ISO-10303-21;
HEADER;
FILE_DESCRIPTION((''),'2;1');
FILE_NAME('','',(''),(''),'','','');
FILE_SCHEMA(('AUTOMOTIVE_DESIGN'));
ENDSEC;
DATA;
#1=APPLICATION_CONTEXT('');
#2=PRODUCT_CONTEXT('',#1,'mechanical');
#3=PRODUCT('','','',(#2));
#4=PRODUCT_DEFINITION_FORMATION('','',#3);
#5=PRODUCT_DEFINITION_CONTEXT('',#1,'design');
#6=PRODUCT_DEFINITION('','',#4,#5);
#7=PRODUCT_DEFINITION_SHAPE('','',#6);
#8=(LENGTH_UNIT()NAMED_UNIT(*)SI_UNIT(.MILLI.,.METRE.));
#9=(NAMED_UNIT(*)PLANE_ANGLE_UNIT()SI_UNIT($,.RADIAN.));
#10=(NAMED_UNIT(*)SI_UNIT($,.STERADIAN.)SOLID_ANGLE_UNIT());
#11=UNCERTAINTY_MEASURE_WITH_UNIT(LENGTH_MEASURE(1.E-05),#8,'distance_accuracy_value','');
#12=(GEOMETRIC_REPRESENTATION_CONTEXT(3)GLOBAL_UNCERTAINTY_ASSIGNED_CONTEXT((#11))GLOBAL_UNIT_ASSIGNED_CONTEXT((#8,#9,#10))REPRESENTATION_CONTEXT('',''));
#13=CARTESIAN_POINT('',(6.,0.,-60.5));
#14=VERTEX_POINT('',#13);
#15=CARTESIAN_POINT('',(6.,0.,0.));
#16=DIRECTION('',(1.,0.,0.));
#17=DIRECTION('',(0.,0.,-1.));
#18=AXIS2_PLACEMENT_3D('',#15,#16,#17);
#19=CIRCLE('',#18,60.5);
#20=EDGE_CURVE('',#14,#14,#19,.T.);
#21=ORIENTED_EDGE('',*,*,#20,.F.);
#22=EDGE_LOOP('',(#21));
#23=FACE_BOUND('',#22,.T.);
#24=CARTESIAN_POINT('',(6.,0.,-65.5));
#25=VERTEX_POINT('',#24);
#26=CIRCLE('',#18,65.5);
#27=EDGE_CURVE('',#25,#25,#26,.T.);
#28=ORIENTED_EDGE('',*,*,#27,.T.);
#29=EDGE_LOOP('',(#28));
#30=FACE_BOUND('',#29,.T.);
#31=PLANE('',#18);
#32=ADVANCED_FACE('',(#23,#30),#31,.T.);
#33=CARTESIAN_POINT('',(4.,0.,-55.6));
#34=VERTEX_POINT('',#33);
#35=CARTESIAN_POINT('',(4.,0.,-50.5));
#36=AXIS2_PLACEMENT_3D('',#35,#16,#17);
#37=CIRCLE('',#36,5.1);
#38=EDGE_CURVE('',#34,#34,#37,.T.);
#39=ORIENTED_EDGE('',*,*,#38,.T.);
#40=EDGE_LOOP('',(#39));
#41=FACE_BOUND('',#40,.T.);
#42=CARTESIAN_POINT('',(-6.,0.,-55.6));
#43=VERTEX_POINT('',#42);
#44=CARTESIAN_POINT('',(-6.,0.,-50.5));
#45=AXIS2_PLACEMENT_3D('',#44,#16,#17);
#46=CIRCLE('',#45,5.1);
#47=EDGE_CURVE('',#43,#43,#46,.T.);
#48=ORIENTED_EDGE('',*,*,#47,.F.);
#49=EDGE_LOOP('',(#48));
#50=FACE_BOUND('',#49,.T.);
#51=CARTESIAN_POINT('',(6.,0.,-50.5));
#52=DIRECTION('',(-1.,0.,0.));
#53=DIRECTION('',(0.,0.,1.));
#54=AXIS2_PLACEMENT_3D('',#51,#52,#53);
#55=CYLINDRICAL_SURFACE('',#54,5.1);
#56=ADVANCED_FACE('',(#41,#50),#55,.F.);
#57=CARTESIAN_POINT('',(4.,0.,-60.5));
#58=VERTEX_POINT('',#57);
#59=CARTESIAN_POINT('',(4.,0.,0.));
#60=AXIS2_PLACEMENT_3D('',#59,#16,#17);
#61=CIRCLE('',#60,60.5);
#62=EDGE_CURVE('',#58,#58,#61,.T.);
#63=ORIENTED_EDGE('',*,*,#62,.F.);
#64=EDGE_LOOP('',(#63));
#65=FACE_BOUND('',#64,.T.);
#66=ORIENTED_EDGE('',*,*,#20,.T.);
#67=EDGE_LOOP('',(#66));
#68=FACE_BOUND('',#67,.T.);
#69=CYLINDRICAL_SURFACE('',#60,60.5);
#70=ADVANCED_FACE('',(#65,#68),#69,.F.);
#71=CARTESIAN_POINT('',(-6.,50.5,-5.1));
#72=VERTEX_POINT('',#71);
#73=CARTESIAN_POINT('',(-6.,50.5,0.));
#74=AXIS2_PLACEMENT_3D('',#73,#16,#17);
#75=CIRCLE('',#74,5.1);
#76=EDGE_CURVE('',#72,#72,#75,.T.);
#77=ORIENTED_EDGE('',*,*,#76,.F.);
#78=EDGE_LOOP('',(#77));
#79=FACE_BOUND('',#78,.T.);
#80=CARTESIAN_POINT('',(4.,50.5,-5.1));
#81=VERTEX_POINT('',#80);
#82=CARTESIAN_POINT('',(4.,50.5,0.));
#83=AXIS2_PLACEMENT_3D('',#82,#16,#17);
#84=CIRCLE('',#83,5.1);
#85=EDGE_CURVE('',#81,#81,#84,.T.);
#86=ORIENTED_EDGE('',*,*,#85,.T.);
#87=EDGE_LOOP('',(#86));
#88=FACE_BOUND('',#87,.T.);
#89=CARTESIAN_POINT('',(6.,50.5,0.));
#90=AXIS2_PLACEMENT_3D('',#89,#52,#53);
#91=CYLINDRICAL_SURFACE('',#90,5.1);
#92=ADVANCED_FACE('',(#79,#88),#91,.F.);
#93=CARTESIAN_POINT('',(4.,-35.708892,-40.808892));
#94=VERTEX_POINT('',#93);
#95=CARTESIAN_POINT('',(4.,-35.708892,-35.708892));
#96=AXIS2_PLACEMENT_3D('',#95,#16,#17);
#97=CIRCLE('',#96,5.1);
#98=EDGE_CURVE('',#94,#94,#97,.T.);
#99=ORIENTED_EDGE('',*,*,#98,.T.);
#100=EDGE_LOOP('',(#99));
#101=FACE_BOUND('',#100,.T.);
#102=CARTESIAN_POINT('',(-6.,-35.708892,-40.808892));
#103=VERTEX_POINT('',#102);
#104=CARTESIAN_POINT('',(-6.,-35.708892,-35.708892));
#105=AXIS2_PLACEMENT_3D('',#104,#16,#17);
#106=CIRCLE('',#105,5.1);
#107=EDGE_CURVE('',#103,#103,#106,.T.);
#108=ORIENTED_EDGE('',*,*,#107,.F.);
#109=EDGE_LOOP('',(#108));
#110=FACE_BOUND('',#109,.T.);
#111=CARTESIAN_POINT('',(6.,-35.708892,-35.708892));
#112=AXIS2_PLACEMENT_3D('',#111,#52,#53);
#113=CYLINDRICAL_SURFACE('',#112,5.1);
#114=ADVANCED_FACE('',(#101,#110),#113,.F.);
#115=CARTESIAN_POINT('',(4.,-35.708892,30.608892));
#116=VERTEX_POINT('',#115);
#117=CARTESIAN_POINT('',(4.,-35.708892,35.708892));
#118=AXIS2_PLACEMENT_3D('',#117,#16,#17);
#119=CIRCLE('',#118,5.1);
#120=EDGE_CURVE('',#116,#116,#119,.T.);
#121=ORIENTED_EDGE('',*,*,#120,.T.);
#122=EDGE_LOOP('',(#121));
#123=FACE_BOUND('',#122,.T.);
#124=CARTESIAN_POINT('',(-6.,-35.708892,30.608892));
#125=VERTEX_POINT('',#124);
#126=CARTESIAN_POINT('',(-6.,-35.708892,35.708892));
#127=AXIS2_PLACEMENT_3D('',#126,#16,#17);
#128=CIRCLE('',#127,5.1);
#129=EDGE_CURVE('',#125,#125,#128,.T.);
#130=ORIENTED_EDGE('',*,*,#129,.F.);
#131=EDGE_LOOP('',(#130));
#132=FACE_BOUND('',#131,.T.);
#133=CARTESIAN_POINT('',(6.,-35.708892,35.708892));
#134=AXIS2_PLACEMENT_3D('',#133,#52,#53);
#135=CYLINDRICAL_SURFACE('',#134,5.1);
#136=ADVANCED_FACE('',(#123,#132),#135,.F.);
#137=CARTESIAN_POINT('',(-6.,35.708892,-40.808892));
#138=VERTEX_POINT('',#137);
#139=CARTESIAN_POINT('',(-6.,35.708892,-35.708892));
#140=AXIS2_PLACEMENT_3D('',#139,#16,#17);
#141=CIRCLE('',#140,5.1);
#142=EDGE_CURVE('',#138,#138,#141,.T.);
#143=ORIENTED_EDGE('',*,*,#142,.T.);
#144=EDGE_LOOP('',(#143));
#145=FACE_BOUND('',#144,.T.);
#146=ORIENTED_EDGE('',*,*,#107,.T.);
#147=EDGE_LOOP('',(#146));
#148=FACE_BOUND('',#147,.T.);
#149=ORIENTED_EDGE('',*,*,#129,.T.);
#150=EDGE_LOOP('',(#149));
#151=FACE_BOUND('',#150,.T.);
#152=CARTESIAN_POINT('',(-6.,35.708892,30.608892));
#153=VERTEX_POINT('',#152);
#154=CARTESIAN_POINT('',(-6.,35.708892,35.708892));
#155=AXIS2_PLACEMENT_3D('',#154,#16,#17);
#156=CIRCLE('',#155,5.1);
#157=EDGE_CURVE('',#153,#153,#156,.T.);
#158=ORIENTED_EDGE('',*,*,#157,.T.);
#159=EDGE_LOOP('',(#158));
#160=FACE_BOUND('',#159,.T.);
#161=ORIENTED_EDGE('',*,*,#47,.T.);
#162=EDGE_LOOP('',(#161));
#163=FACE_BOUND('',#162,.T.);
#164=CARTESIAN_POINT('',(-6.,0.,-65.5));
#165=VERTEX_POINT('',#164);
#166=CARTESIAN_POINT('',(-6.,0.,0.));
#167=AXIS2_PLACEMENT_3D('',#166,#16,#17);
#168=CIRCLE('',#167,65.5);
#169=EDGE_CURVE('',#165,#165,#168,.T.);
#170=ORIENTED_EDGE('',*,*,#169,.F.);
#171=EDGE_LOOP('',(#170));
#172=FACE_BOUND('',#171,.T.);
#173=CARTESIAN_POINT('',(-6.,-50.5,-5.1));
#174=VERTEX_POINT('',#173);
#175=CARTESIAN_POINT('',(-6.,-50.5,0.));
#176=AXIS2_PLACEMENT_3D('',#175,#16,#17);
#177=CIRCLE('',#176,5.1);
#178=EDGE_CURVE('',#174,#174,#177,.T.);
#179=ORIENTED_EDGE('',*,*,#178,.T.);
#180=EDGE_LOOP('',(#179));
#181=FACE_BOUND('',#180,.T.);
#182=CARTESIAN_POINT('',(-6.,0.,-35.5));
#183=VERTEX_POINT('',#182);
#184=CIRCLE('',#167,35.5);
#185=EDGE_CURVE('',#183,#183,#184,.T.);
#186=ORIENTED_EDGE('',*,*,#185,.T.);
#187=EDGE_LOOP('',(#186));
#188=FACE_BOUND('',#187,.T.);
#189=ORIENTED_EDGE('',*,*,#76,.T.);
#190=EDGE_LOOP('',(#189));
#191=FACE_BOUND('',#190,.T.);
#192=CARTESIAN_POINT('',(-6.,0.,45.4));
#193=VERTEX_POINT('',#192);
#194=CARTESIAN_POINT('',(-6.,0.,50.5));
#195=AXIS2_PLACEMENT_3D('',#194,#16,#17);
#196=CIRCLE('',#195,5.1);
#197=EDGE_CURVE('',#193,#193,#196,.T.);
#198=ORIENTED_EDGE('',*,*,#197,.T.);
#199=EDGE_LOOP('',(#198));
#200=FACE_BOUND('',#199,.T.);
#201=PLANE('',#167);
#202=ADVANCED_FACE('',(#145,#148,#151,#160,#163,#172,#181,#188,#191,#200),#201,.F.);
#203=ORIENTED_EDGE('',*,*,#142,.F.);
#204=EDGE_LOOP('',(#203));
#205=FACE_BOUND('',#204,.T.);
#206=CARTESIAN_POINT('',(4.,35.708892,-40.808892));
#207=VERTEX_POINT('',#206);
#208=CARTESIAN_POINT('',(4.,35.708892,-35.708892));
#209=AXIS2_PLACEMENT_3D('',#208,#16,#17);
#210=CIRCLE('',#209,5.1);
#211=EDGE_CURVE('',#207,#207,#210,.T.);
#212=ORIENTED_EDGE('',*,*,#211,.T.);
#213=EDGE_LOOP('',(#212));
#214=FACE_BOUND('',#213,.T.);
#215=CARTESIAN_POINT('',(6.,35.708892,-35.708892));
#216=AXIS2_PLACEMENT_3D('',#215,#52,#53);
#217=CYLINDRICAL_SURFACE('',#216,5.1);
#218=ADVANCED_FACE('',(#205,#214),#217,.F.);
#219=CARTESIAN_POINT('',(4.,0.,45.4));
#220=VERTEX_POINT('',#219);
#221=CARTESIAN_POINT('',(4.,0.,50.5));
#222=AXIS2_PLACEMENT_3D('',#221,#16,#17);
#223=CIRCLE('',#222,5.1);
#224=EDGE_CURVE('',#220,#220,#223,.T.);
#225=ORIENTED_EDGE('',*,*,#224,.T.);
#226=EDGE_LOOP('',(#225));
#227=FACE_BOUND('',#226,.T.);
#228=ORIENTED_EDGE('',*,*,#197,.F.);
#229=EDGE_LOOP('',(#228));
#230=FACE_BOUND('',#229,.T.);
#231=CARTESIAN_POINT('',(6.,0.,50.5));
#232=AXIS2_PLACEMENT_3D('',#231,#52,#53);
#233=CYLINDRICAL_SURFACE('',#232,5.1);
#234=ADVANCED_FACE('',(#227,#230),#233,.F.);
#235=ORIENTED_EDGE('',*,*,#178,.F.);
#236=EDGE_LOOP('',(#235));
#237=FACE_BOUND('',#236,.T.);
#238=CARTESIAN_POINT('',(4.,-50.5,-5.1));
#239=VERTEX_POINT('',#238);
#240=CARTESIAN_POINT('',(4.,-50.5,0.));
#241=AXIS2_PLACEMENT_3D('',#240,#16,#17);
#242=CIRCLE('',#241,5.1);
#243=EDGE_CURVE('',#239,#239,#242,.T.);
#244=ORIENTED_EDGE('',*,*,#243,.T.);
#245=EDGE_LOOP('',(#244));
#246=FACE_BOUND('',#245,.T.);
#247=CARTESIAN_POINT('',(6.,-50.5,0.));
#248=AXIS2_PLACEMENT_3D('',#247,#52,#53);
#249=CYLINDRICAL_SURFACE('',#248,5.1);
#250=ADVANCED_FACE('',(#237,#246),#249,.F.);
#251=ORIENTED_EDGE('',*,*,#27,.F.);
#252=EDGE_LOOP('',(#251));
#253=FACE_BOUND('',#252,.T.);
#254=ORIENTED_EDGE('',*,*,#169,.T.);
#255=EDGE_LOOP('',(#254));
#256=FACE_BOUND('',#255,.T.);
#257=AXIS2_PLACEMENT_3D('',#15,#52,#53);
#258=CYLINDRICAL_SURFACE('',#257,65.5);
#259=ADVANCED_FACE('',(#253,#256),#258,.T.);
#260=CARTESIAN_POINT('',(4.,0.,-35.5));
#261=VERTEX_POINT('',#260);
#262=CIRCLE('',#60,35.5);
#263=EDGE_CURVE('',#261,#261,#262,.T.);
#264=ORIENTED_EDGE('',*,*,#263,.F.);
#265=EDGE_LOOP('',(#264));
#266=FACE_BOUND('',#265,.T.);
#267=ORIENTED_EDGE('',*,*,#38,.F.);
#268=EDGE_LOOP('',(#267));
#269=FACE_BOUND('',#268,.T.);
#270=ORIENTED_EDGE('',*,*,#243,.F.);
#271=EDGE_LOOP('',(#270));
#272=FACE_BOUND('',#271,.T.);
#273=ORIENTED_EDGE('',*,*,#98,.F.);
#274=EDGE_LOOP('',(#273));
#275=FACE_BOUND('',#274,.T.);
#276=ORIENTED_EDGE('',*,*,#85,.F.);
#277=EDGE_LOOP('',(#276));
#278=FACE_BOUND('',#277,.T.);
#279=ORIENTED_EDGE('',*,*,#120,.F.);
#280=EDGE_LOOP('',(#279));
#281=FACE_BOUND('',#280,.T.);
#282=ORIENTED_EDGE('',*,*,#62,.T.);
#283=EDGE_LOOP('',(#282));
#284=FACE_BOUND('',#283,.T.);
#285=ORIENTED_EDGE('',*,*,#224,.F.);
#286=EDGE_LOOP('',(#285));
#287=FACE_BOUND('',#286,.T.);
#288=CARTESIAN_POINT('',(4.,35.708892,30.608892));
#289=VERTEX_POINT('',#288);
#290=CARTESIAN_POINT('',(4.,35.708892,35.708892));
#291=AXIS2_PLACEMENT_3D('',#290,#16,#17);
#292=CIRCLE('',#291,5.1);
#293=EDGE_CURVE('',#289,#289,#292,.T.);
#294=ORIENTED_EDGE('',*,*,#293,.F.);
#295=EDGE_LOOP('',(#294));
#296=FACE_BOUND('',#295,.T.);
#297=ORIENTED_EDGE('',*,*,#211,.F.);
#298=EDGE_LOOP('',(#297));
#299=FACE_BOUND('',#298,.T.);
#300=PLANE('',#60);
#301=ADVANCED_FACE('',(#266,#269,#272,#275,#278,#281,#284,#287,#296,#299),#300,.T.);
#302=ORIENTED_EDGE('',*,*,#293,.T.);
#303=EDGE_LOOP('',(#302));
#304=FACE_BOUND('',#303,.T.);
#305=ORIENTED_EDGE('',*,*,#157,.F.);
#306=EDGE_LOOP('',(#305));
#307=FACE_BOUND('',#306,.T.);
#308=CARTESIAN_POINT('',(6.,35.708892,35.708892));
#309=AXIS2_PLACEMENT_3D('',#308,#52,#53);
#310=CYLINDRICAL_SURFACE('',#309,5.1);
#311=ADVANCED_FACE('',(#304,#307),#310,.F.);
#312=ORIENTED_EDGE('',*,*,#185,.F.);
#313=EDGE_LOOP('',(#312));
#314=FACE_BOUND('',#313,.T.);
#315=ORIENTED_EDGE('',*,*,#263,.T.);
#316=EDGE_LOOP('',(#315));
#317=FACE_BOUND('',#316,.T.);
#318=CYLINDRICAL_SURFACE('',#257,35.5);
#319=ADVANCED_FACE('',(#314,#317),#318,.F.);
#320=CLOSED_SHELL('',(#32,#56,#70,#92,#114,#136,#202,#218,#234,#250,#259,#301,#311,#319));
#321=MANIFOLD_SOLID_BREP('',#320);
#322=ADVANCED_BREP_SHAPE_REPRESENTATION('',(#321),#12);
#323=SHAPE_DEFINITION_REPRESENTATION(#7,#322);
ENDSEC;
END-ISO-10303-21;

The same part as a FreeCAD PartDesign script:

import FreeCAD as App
import Part
import Sketcher

V = App.Vector
Q = App.Units.Quantity


def add_polygon(sketch, points):
    """Adds a closed chain of lines whose ends are joined by coincident constraints."""
    first, n = sketch.GeometryCount, len(points)
    for a, b in zip(points, points[1:] + points[:1]):
        sketch.addGeometry(Part.LineSegment(App.Vector(*a, 0), App.Vector(*b, 0)), False)
    for i in range(n):
        sketch.addConstraint(Sketcher.Constraint("Coincident", first + i, 2, first + (i + 1) % n, 1))

doc = App.newDocument("Part")
body = doc.addObject("PartDesign::Body", "Body")

sketch1 = doc.addObject("Sketcher::SketchObject", "Sketch")
body.addObject(sketch1)
sketch1.AttachmentSupport = (doc.YZ_Plane, [""])
sketch1.MapMode = "FlatFace"
sketch1.addGeometry([
    Part.Circle(V(0, 0, 0), V(0, 0, 1), 66),
    Part.Circle(V(-36, 36, 0), V(0, 0, 1), 5),
    Part.Circle(V(-50, 0, 0), V(0, 0, 1), 5),
    Part.Circle(V(-36, -36, 0), V(0, 0, 1), 5),
    Part.Circle(V(0, 50, 0), V(0, 0, 1), 5),
    Part.Circle(V(36, 36, 0), V(0, 0, 1), 5),
    Part.Circle(V(0, 0, 0), V(0, 0, 1), 36),
    Part.Circle(V(0, -50, 0), V(0, 0, 1), 5),
    Part.Circle(V(50, 0, 0), V(0, 0, 1), 5),
    Part.Circle(V(36, -36, 0), V(0, 0, 1), 5),
], False)
sketch1.addConstraint([
    Sketcher.Constraint("Coincident", 0, 3, -1, 1),
    Sketcher.Constraint("Coincident", 6, 3, -1, 1),
    Sketcher.Constraint("Equal", 1, 2),
    Sketcher.Constraint("Equal", 2, 3),
    Sketcher.Constraint("Equal", 3, 4),
    Sketcher.Constraint("Equal", 4, 5),
    Sketcher.Constraint("Equal", 5, 7),
    Sketcher.Constraint("Equal", 7, 8),
    Sketcher.Constraint("Equal", 8, 9),
    Sketcher.Constraint("Symmetric", 3, 3, 5, 3, -1, 1),
    Sketcher.Constraint("Symmetric", 4, 3, 7, 3, -1, 1),
    Sketcher.Constraint("Symmetric", 2, 3, 8, 3, -1, 1),
    Sketcher.Constraint("Symmetric", 1, 3, 9, 3, -1, 1),
    Sketcher.Constraint("Symmetric", 1, 3, 5, 3, -2),
    Sketcher.Constraint("PointOnObject", 2, 3, -1),
    Sketcher.Constraint("PointOnObject", 4, 3, -2),
    Sketcher.Constraint("Diameter", 0, Q("131 mm")),
    Sketcher.Constraint("Diameter", 6, Q("71 mm")),
    Sketcher.Constraint("Diameter", 1, Q("10.2 mm")),
    Sketcher.Constraint("DistanceX", 2, 3, -1, 1, Q("50.5 mm")),
    Sketcher.Constraint("DistanceY", -1, 1, 4, 3, Q("50.5 mm")),
    Sketcher.Constraint("DistanceX", 1, 3, -1, 1, Q("35.708892 mm")),
    Sketcher.Constraint("DistanceY", -1, 1, 1, 3, Q("35.708892 mm")),
])
pad1 = doc.addObject("PartDesign::Pad", "Pad")
body.addObject(pad1)
pad1.Profile = sketch1
pad1.Length = 12
pad1.Midplane = True

sketch2 = doc.addObject("Sketcher::SketchObject", "Sketch001")
body.addObject(sketch2)
sketch2.AttachmentSupport = (doc.YZ_Plane, [""])
sketch2.MapMode = "FlatFace"
sketch2.AttachmentOffset = App.Placement(V(0, 0, 6), App.Rotation())
add_polygon(sketch2, [(85, 85), (-85, 85), (-85, -85), (85, -85)])
sketch2.addGeometry(Part.Circle(V(0, 0, 0), V(0, 0, 1), 66), False)
sketch2.addGeometry(Part.Circle(V(0, 0, 0), V(0, 0, 1), 60), False)
sketch2.addConstraint([
    Sketcher.Constraint("Horizontal", 0),
    Sketcher.Constraint("Vertical", 1),
    Sketcher.Constraint("Horizontal", 2),
    Sketcher.Constraint("Vertical", 3),
    Sketcher.Constraint("Coincident", 4, 3, -1, 1),
    Sketcher.Constraint("Coincident", 5, 3, -1, 1),
    Sketcher.Constraint("Symmetric", 0, 2, 2, 2, -1, 1),
    Sketcher.Constraint("Equal", 2, 1),
    Sketcher.Constraint("Diameter", 4, Q("131 mm")),
    Sketcher.Constraint("Diameter", 5, Q("121 mm")),
    Sketcher.Constraint("DistanceX", 0, 2, 0, 1, Q("170.13 mm")),
])
pocket1 = doc.addObject("PartDesign::Pocket", "Pocket")
body.addObject(pocket1)
pocket1.Profile = sketch2
pocket1.Length = 2

doc.recompute()
